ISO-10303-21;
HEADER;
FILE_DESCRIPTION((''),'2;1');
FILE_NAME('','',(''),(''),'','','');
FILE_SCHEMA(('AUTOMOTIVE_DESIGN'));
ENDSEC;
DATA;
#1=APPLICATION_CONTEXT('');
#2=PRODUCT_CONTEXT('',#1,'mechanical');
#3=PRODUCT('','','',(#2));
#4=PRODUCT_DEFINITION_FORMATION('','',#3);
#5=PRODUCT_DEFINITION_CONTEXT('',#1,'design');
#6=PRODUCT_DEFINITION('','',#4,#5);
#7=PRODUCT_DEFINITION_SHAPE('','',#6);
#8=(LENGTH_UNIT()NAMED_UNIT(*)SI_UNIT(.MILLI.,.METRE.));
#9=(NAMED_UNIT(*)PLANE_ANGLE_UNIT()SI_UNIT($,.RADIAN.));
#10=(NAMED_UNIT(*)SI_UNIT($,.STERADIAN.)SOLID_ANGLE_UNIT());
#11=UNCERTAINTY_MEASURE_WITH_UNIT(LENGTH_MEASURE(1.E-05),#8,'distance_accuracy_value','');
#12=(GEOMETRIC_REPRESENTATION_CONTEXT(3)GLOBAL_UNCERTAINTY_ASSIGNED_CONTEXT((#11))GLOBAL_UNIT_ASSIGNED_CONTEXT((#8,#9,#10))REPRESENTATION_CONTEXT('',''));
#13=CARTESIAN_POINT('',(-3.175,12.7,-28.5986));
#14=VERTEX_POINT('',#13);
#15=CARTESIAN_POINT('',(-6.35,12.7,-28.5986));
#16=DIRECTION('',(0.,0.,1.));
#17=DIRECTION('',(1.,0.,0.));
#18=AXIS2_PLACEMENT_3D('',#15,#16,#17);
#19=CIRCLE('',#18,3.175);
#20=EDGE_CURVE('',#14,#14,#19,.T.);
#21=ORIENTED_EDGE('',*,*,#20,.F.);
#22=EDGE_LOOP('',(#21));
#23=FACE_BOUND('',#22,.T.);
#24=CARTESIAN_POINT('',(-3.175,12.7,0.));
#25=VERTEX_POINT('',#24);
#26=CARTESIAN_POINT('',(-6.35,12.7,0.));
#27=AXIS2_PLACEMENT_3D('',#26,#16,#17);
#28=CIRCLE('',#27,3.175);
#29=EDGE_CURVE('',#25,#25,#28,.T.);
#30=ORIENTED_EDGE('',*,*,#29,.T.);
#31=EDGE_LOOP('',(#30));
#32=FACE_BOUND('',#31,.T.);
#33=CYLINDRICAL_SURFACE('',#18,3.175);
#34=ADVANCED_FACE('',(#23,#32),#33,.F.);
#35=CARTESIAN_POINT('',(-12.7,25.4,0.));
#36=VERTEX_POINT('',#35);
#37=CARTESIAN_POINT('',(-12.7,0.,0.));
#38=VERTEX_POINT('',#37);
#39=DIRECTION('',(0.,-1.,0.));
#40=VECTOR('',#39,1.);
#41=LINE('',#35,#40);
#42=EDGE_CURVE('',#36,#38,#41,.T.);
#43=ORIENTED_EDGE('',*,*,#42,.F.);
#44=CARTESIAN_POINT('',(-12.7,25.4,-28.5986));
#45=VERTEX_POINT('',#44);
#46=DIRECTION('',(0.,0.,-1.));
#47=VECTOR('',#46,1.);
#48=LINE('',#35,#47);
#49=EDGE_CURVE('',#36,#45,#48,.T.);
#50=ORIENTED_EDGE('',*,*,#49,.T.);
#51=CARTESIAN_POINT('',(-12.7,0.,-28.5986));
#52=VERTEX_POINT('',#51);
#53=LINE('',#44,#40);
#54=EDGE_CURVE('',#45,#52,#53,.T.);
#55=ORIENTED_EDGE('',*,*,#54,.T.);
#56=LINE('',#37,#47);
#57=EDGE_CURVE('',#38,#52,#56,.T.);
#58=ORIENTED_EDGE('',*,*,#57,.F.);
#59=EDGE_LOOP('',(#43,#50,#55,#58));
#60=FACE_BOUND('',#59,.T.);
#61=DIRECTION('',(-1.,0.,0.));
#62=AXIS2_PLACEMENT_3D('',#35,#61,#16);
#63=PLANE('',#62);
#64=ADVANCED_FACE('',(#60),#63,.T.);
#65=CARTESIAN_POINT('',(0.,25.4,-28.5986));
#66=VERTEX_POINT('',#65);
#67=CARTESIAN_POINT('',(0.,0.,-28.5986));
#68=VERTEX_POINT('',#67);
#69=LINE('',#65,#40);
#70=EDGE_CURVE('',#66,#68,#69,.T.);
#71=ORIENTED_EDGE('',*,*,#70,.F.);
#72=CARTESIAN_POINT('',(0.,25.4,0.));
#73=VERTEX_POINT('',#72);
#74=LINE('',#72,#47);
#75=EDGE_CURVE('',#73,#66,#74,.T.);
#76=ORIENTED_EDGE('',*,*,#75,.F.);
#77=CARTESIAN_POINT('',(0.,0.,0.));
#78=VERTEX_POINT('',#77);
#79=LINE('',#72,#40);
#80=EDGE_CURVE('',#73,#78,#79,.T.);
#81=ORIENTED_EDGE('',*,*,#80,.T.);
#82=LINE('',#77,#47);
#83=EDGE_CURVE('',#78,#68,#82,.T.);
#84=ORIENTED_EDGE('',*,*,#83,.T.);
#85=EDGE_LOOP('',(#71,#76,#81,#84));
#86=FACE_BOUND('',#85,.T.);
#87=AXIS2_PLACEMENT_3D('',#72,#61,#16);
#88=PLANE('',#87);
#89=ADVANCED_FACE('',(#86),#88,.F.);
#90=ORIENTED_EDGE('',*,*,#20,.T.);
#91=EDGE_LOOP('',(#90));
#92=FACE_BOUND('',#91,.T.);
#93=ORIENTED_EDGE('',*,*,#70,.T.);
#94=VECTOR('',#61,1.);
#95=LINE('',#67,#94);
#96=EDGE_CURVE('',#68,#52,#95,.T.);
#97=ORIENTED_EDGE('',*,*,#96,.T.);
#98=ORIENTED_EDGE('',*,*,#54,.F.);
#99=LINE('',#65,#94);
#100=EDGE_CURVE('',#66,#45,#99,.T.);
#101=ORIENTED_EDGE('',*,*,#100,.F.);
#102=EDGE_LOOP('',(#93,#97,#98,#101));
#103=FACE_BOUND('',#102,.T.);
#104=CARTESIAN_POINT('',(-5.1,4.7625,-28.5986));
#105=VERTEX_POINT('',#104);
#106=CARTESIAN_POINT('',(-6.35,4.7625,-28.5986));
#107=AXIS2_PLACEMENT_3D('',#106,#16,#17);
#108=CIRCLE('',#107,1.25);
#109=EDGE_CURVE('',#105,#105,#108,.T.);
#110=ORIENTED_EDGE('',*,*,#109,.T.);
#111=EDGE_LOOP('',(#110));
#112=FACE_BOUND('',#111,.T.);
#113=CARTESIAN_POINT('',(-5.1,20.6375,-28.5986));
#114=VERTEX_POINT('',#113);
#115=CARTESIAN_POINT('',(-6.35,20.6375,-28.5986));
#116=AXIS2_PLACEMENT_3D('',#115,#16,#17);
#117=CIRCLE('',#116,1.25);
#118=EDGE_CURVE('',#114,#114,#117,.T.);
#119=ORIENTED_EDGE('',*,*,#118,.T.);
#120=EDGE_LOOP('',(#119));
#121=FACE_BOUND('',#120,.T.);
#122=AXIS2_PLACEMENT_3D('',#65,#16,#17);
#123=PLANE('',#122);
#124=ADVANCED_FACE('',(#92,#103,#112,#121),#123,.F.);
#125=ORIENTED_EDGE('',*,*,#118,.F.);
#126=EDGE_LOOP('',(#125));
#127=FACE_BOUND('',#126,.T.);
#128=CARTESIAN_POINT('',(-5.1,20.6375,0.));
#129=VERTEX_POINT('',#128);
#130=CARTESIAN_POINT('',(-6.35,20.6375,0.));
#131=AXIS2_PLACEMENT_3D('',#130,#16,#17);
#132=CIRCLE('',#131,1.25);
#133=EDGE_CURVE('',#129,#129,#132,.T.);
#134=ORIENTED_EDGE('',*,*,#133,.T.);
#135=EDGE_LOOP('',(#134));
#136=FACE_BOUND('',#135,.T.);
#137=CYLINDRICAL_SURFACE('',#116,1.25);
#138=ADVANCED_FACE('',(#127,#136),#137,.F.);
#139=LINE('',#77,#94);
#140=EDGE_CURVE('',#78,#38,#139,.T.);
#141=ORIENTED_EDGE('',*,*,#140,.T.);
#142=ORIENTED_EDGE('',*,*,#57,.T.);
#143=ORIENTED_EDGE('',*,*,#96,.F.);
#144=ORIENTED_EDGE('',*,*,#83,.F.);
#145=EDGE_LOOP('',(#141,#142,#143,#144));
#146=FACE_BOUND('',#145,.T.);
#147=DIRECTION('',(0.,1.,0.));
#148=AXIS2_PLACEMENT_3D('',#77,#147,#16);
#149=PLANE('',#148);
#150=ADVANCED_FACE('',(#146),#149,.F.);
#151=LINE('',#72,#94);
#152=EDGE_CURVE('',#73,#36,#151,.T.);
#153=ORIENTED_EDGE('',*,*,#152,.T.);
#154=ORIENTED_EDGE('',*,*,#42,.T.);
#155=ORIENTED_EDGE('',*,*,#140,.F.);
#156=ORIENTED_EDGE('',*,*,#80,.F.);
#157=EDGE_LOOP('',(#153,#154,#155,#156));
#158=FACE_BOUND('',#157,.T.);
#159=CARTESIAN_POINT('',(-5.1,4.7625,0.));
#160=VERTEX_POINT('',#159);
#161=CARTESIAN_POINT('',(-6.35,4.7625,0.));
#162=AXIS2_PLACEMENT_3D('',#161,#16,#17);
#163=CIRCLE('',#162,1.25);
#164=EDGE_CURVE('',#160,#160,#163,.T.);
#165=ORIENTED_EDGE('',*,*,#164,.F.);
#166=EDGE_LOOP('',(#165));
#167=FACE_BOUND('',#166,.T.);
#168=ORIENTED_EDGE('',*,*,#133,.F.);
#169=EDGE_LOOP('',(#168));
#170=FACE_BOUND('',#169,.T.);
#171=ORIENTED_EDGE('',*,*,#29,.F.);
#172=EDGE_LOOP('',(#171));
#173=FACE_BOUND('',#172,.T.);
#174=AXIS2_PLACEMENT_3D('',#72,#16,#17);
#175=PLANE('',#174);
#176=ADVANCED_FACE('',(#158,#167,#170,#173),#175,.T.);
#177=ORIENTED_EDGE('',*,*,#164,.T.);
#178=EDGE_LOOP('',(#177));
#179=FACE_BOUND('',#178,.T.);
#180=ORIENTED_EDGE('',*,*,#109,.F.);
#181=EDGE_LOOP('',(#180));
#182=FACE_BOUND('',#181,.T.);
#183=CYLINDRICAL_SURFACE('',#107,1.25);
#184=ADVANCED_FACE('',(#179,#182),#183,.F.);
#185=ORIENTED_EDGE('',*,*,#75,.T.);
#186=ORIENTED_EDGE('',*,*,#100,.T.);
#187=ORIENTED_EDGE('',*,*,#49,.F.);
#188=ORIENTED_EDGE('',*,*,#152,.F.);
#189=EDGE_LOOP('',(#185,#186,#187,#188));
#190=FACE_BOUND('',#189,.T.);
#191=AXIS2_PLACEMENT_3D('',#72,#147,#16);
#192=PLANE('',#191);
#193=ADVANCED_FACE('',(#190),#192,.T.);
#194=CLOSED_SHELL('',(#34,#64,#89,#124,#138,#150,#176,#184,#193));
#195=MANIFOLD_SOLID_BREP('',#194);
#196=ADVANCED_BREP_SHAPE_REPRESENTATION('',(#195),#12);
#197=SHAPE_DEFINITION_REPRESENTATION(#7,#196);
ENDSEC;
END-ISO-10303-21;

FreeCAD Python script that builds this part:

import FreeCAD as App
import Part
import Sketcher

V = App.Vector
Q = App.Units.Quantity


def add_polygon(sketch, points):
    """Adds a closed chain of lines whose ends are joined by coincident constraints."""
    first, n = sketch.GeometryCount, len(points)
    for a, b in zip(points, points[1:] + points[:1]):
        sketch.addGeometry(Part.LineSegment(App.Vector(*a, 0), App.Vector(*b, 0)), False)
    for i in range(n):
        sketch.addConstraint(Sketcher.Constraint("Coincident", first + i, 2, first + (i + 1) % n, 1))

doc = App.newDocument("Part")
body = doc.addObject("PartDesign::Body", "Body")

# Sketch on XZ plane
sketch1 = doc.addObject("Sketcher::SketchObject", "Sketch")
body.addObject(sketch1)
sketch1.AttachmentSupport = (doc.XZ_Plane, [""])
sketch1.MapMode = "FlatFace"
add_polygon(sketch1, [(-13, -29), (-13, 0), (0, 0), (0, -29)])  # lines 0-3
sketch1.addConstraint([
    Sketcher.Constraint("Vertical", 0),
    Sketcher.Constraint("Horizontal", 1),
    Sketcher.Constraint("Vertical", 2),
    Sketcher.Constraint("Horizontal", 3),
    Sketcher.Constraint("Coincident", 1, 2, -1, 1),
    Sketcher.Constraint("DistanceX", 1, 1, 1, 2, Q("0.5 in")),
    Sketcher.Constraint("DistanceY", 0, 1, 0, 2, Q("28.5986 mm")),
])
pad1 = doc.addObject("PartDesign::Pad", "Pad")
body.addObject(pad1)
pad1.Profile = sketch1
pad1.Length = Q("1 in")
pad1.Reversed = True

# Sketch on XY plane
sketch2 = doc.addObject("Sketcher::SketchObject", "Sketch001")
body.addObject(sketch2)
sketch2.AttachmentSupport = (doc.XY_Plane, [""])
sketch2.MapMode = "FlatFace"
sketch2.addGeometry([
    Part.Circle(V(-6.3, 12.7, 0), V(0, 0, 1), 3.2),
    Part.Circle(V(-6.3, 20.6, 0), V(0, 0, 1), 1.2),
    Part.Circle(V(-6.3, 4.8, 0), V(0, 0, 1), 1.2),
], False)
sketch2.addConstraint([
    Sketcher.Constraint("Equal", 1, 2),
    Sketcher.Constraint("Vertical", 0, 3, 1, 3),
    Sketcher.Constraint("Vertical", 1, 3, 2, 3),
    Sketcher.Constraint("Diameter", 0, Q("0.25 in")),
    Sketcher.Constraint("DistanceY", -1, 1, 0, 3, Q("0.5 in")),
    Sketcher.Constraint("Diameter", 1, Q("2.5 mm")),
    Sketcher.Constraint("DistanceX", 0, 3, -1, 1, Q("0.25 in")),
    Sketcher.Constraint("DistanceY", -1, 1, 1, 3, Q("0.8125 in")),
    Sketcher.Constraint("DistanceY", -1, 1, 2, 3, Q("0.1875 in")),
])
pocket1 = doc.addObject("PartDesign::Pocket", "Pocket")
body.addObject(pocket1)
pocket1.Profile = sketch2
pocket1.Type = "ThroughAll"

doc.recompute()
